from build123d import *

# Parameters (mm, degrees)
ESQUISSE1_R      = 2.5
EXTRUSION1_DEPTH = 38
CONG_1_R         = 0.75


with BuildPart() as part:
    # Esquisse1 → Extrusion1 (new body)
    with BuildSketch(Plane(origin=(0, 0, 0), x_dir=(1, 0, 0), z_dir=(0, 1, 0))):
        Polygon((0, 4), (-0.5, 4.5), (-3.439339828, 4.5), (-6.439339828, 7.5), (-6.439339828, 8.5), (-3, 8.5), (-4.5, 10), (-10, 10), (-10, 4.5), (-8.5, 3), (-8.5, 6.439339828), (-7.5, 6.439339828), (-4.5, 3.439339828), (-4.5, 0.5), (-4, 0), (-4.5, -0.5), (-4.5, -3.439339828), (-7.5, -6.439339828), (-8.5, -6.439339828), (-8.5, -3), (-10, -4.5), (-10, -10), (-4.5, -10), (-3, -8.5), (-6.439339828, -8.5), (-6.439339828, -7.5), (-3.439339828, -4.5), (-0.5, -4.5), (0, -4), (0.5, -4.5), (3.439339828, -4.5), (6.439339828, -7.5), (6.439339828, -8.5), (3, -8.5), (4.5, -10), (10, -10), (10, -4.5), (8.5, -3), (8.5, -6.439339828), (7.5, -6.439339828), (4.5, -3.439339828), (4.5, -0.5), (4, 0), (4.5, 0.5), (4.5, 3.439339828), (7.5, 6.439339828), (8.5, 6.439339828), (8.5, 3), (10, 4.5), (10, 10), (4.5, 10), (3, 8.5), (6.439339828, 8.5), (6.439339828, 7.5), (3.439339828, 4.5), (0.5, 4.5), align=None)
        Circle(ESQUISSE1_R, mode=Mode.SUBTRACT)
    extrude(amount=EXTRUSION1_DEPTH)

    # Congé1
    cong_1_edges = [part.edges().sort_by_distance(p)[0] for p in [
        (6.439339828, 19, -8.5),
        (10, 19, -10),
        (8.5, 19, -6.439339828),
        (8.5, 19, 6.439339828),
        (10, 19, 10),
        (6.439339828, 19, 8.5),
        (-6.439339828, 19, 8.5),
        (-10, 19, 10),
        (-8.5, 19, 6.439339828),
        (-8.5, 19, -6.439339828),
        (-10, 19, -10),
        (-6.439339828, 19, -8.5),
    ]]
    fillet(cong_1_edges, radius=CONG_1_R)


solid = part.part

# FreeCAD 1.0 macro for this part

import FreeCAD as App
import Part
import Sketcher
from FreeCAD import Vector
Q = App.Units.Quantity


def edges_at(feature, points):
    """Names of the edges that pass closest to the given points."""
    edges = feature.Shape.Edges
    near = lambda p: min(range(len(edges)), key=lambda i: edges[i].distToShape(Part.Vertex(*p))[0])
    return sorted({f"Edge{near(p) + 1}" for p in points})

doc = App.newDocument("Part")
body = doc.addObject("PartDesign::Body", "Body")

# Sketch on XZ plane
sketch1 = body.newObject("Sketcher::SketchObject", "Sketch")
sketch1.AttachmentSupport = (doc.getObject("XZ_Plane"), [""])
sketch1.MapMode = "FlatFace"
sketch1.addGeometry(Part.LineSegment(Vector(0, -4, 0), Vector(-0.5, -4.5, 0)), False)
sketch1.addGeometry(Part.LineSegment(Vector(-0.5, -4.5, 0), Vector(-3.43934, -4.5, 0)), False)
sketch1.addGeometry(Part.LineSegment(Vector(-3.43934, -4.5, 0), Vector(-6.43934, -7.5, 0)), False)
sketch1.addGeometry(Part.LineSegment(Vector(-6.43934, -7.5, 0), Vector(-6.43934, -8.5, 0)), False)
sketch1.addGeometry(Part.LineSegment(Vector(-6.43934, -8.5, 0), Vector(-3, -8.5, 0)), False)
sketch1.addGeometry(Part.LineSegment(Vector(-3, -8.5, 0), Vector(-4.5, -10, 0)), False)
sketch1.addGeometry(Part.LineSegment(Vector(-4.5, -10, 0), Vector(-10, -10, 0)), False)
sketch1.addGeometry(Part.LineSegment(Vector(-10, -10, 0), Vector(-10, -4.5, 0)), False)
sketch1.addGeometry(Part.LineSegment(Vector(-10, -4.5, 0), Vector(-8.5, -3, 0)), False)
sketch1.addGeometry(Part.LineSegment(Vector(-8.5, -3, 0), Vector(-8.5, -6.43934, 0)), False)
sketch1.addGeometry(Part.LineSegment(Vector(-8.5, -6.43934, 0), Vector(-7.5, -6.43934, 0)), False)
sketch1.addGeometry(Part.LineSegment(Vector(-7.5, -6.43934, 0), Vector(-4.5, -3.43934, 0)), False)
sketch1.addGeometry(Part.LineSegment(Vector(-4.5, -3.43934, 0), Vector(-4.5, -0.5, 0)), False)
sketch1.addGeometry(Part.LineSegment(Vector(-4.5, -0.5, 0), Vector(-4, 0, 0)), False)
sketch1.addGeometry(Part.LineSegment(Vector(-4, 0, 0), Vector(-4.5, 0.5, 0)), False)
sketch1.addGeometry(Part.LineSegment(Vector(-4.5, 0.5, 0), Vector(-4.5, 3.43934, 0)), False)
sketch1.addGeometry(Part.LineSegment(Vector(-4.5, 3.43934, 0), Vector(-7.5, 6.43934, 0)), False)
sketch1.addGeometry(Part.LineSegment(Vector(-7.5, 6.43934, 0), Vector(-8.5, 6.43934, 0)), False)
sketch1.addGeometry(Part.LineSegment(Vector(-8.5, 6.43934, 0), Vector(-8.5, 3, 0)), False)
sketch1.addGeometry(Part.LineSegment(Vector(-8.5, 3, 0), Vector(-10, 4.5, 0)), False)
sketch1.addGeometry(Part.LineSegment(Vector(-10, 4.5, 0), Vector(-10, 10, 0)), False)
sketch1.addGeometry(Part.LineSegment(Vector(-10, 10, 0), Vector(-4.5, 10, 0)), False)
sketch1.addGeometry(Part.LineSegment(Vector(-4.5, 10, 0), Vector(-3, 8.5, 0)), False)
sketch1.addGeometry(Part.LineSegment(Vector(-3, 8.5, 0), Vector(-6.43934, 8.5, 0)), False)
sketch1.addGeometry(Part.LineSegment(Vector(-6.43934, 8.5, 0), Vector(-6.43934, 7.5, 0)), False)
sketch1.addGeometry(Part.LineSegment(Vector(-6.43934, 7.5, 0), Vector(-3.43934, 4.5, 0)), False)
sketch1.addGeometry(Part.LineSegment(Vector(-3.43934, 4.5, 0), Vector(-0.5, 4.5, 0)), False)
sketch1.addGeometry(Part.LineSegment(Vector(-0.5, 4.5, 0), Vector(0, 4, 0)), False)
sketch1.addGeometry(Part.LineSegment(Vector(0, 4, 0), Vector(0.5, 4.5, 0)), False)
sketch1.addGeometry(Part.LineSegment(Vector(0.5, 4.5, 0), Vector(3.43934, 4.5, 0)), False)
sketch1.addGeometry(Part.LineSegment(Vector(3.43934, 4.5, 0), Vector(6.43934, 7.5, 0)), False)
sketch1.addGeometry(Part.LineSegment(Vector(6.43934, 7.5, 0), Vector(6.43934, 8.5, 0)), False)
sketch1.addGeometry(Part.LineSegment(Vector(6.43934, 8.5, 0), Vector(3, 8.5, 0)), False)
sketch1.addGeometry(Part.LineSegment(Vector(3, 8.5, 0), Vector(4.5, 10, 0)), False)
sketch1.addGeometry(Part.LineSegment(Vector(4.5, 10, 0), Vector(10, 10, 0)), False)
sketch1.addGeometry(Part.LineSegment(Vector(10, 10, 0), Vector(10, 4.5, 0)), False)
sketch1.addGeometry(Part.LineSegment(Vector(10, 4.5, 0), Vector(8.5, 3, 0)), False)
sketch1.addGeometry(Part.LineSegment(Vector(8.5, 3, 0), Vector(8.5, 6.43934, 0)), False)
sketch1.addGeometry(Part.LineSegment(Vector(8.5, 6.43934, 0), Vector(7.5, 6.43934, 0)), False)
sketch1.addGeometry(Part.LineSegment(Vector(7.5, 6.43934, 0), Vector(4.5, 3.43934, 0)), False)
sketch1.addGeometry(Part.LineSegment(Vector(4.5, 3.43934, 0), Vector(4.5, 0.5, 0)), False)
sketch1.addGeometry(Part.LineSegment(Vector(4.5, 0.5, 0), Vector(4, 0, 0)), False)
sketch1.addGeometry(Part.LineSegment(Vector(4, 0, 0), Vector(4.5, -0.5, 0)), False)
sketch1.addGeometry(Part.LineSegment(Vector(4.5, -0.5, 0), Vector(4.5, -3.43934, 0)), False)
sketch1.addGeometry(Part.LineSegment(Vector(4.5, -3.43934, 0), Vector(7.5, -6.43934, 0)), False)
sketch1.addGeometry(Part.LineSegment(Vector(7.5, -6.43934, 0), Vector(8.5, -6.43934, 0)), False)
sketch1.addGeometry(Part.LineSegment(Vector(8.5, -6.43934, 0), Vector(8.5, -3, 0)), False)
sketch1.addGeometry(Part.LineSegment(Vector(8.5, -3, 0), Vector(10, -4.5, 0)), False)
sketch1.addGeometry(Part.LineSegment(Vector(10, -4.5, 0), Vector(10, -10, 0)), False)
sketch1.addGeometry(Part.LineSegment(Vector(10, -10, 0), Vector(4.5, -10, 0)), False)
sketch1.addGeometry(Part.LineSegment(Vector(4.5, -10, 0), Vector(3, -8.5, 0)), False)
sketch1.addGeometry(Part.LineSegment(Vector(3, -8.5, 0), Vector(6.43934, -8.5, 0)), False)
sketch1.addGeometry(Part.LineSegment(Vector(6.43934, -8.5, 0), Vector(6.43934, -7.5, 0)), False)
sketch1.addGeometry(Part.LineSegment(Vector(6.43934, -7.5, 0), Vector(3.43934, -4.5, 0)), False)
sketch1.addGeometry(Part.LineSegment(Vector(3.43934, -4.5, 0), Vector(0.5, -4.5, 0)), False)
sketch1.addGeometry(Part.LineSegment(Vector(0.5, -4.5, 0), Vector(0, -4, 0)), False)
sketch1.addGeometry(Part.Circle(Vector(0, 0, 0), Vector(0, 0, 1), 2.5), False)
sketch1.addConstraint(Sketcher.Constraint("Coincident", 0, 2, 1, 1))
sketch1.addConstraint(Sketcher.Constraint("Coincident", 1, 2, 2, 1))
sketch1.addConstraint(Sketcher.Constraint("Coincident", 2, 2, 3, 1))
sketch1.addConstraint(Sketcher.Constraint("Coincident", 3, 2, 4, 1))
sketch1.addConstraint(Sketcher.Constraint("Coincident", 4, 2, 5, 1))
sketch1.addConstraint(Sketcher.Constraint("Coincident", 5, 2, 6, 1))
sketch1.addConstraint(Sketcher.Constraint("Coincident", 6, 2, 7, 1))
sketch1.addConstraint(Sketcher.Constraint("Coincident", 7, 2, 8, 1))
sketch1.addConstraint(Sketcher.Constraint("Coincident", 8, 2, 9, 1))
sketch1.addConstraint(Sketcher.Constraint("Coincident", 9, 2, 10, 1))
sketch1.addConstraint(Sketcher.Constraint("Coincident", 10, 2, 11, 1))
sketch1.addConstraint(Sketcher.Constraint("Coincident", 11, 2, 12, 1))
sketch1.addConstraint(Sketcher.Constraint("Coincident", 12, 2, 13, 1))
sketch1.addConstraint(Sketcher.Constraint("Coincident", 13, 2, 14, 1))
sketch1.addConstraint(Sketcher.Constraint("Coincident", 14, 2, 15, 1))
sketch1.addConstraint(Sketcher.Constraint("Coincident", 15, 2, 16, 1))
sketch1.addConstraint(Sketcher.Constraint("Coincident", 16, 2, 17, 1))
sketch1.addConstraint(Sketcher.Constraint("Coincident", 17, 2, 18, 1))
sketch1.addConstraint(Sketcher.Constraint("Coincident", 18, 2, 19, 1))
sketch1.addConstraint(Sketcher.Constraint("Coincident", 19, 2, 20, 1))
sketch1.addConstraint(Sketcher.Constraint("Coincident", 20, 2, 21, 1))
sketch1.addConstraint(Sketcher.Constraint("Coincident", 21, 2, 22, 1))
sketch1.addConstraint(Sketcher.Constraint("Coincident", 22, 2, 23, 1))
sketch1.addConstraint(Sketcher.Constraint("Coincident", 23, 2, 24, 1))
sketch1.addConstraint(Sketcher.Constraint("Coincident", 24, 2, 25, 1))
sketch1.addConstraint(Sketcher.Constraint("Coincident", 25, 2, 26, 1))
sketch1.addConstraint(Sketcher.Constraint("Coincident", 26, 2, 27, 1))
sketch1.addConstraint(Sketcher.Constraint("Coincident", 27, 2, 28, 1))
sketch1.addConstraint(Sketcher.Constraint("Coincident", 28, 2, 29, 1))
sketch1.addConstraint(Sketcher.Constraint("Coincident", 29, 2, 30, 1))
sketch1.addConstraint(Sketcher.Constraint("Coincident", 30, 2, 31, 1))
sketch1.addConstraint(Sketcher.Constraint("Coincident", 31, 2, 32, 1))
sketch1.addConstraint(Sketcher.Constraint("Coincident", 32, 2, 33, 1))
sketch1.addConstraint(Sketcher.Constraint("Coincident", 33, 2, 34, 1))
sketch1.addConstraint(Sketcher.Constraint("Coincident", 34, 2, 35, 1))
sketch1.addConstraint(Sketcher.Constraint("Coincident", 35, 2, 36, 1))
sketch1.addConstraint(Sketcher.Constraint("Coincident", 36, 2, 37, 1))
sketch1.addConstraint(Sketcher.Constraint("Coincident", 37, 2, 38, 1))
sketch1.addConstraint(Sketcher.Constraint("Coincident", 38, 2, 39, 1))
sketch1.addConstraint(Sketcher.Constraint("Coincident", 39, 2, 40, 1))
sketch1.addConstraint(Sketcher.Constraint("Coincident", 40, 2, 41, 1))
sketch1.addConstraint(Sketcher.Constraint("Coincident", 41, 2, 42, 1))
sketch1.addConstraint(Sketcher.Constraint("Coincident", 42, 2, 43, 1))
sketch1.addConstraint(Sketcher.Constraint("Coincident", 43, 2, 44, 1))
sketch1.addConstraint(Sketcher.Constraint("Coincident", 44, 2, 45, 1))
sketch1.addConstraint(Sketcher.Constraint("Coincident", 45, 2, 46, 1))
sketch1.addConstraint(Sketcher.Constraint("Coincident", 46, 2, 47, 1))
sketch1.addConstraint(Sketcher.Constraint("Coincident", 47, 2, 48, 1))
sketch1.addConstraint(Sketcher.Constraint("Coincident", 48, 2, 49, 1))
sketch1.addConstraint(Sketcher.Constraint("Coincident", 49, 2, 50, 1))
sketch1.addConstraint(Sketcher.Constraint("Coincident", 50, 2, 51, 1))
sketch1.addConstraint(Sketcher.Constraint("Coincident", 51, 2, 52, 1))
sketch1.addConstraint(Sketcher.Constraint("Coincident", 52, 2, 53, 1))
sketch1.addConstraint(Sketcher.Constraint("Coincident", 53, 2, 54, 1))
sketch1.addConstraint(Sketcher.Constraint("Coincident", 54, 2, 55, 1))
sketch1.addConstraint(Sketcher.Constraint("Coincident", 55, 2, 0, 1))
sketch1.addConstraint(Sketcher.Constraint("Horizontal", 1))
sketch1.addConstraint(Sketcher.Constraint("Vertical", 3))
sketch1.addConstraint(Sketcher.Constraint("Horizontal", 4))
sketch1.addConstraint(Sketcher.Constraint("Horizontal", 6))
sketch1.addConstraint(Sketcher.Constraint("Vertical", 7))
sketch1.addConstraint(Sketcher.Constraint("Vertical", 9))
sketch1.addConstraint(Sketcher.Constraint("Horizontal", 10))
sketch1.addConstraint(Sketcher.Constraint("Vertical", 12))
sketch1.addConstraint(Sketcher.Constraint("Vertical", 15))
sketch1.addConstraint(Sketcher.Constraint("Horizontal", 17))
sketch1.addConstraint(Sketcher.Constraint("Vertical", 18))
sketch1.addConstraint(Sketcher.Constraint("Vertical", 20))
sketch1.addConstraint(Sketcher.Constraint("Horizontal", 21))
sketch1.addConstraint(Sketcher.Constraint("Horizontal", 23))
sketch1.addConstraint(Sketcher.Constraint("Vertical", 24))
sketch1.addConstraint(Sketcher.Constraint("Horizontal", 26))
sketch1.addConstraint(Sketcher.Constraint("Horizontal", 29))
sketch1.addConstraint(Sketcher.Constraint("Vertical", 31))
sketch1.addConstraint(Sketcher.Constraint("Horizontal", 32))
sketch1.addConstraint(Sketcher.Constraint("Horizontal", 34))
sketch1.addConstraint(Sketcher.Constraint("Vertical", 35))
sketch1.addConstraint(Sketcher.Constraint("Vertical", 37))
sketch1.addConstraint(Sketcher.Constraint("Horizontal", 38))
sketch1.addConstraint(Sketcher.Constraint("Vertical", 40))
sketch1.addConstraint(Sketcher.Constraint("Vertical", 43))
sketch1.addConstraint(Sketcher.Constraint("Horizontal", 45))
sketch1.addConstraint(Sketcher.Constraint("Vertical", 46))
sketch1.addConstraint(Sketcher.Constraint("Vertical", 48))
sketch1.addConstraint(Sketcher.Constraint("Horizontal", 49))
sketch1.addConstraint(Sketcher.Constraint("Horizontal", 51))
sketch1.addConstraint(Sketcher.Constraint("Vertical", 52))
sketch1.addConstraint(Sketcher.Constraint("Horizontal", 54))
sketch1.addConstraint(Sketcher.Constraint("Coincident", 56, 3, -1, 1))
sketch1.addConstraint(Sketcher.Constraint("Symmetric", 0, 2, 28, 2, -1, 1))
sketch1.addConstraint(Sketcher.Constraint("Symmetric", 2, 2, 30, 2, -1, 1))
sketch1.addConstraint(Sketcher.Constraint("Symmetric", 4, 2, 32, 2, -1, 1))
sketch1.addConstraint(Sketcher.Constraint("Symmetric", 5, 2, 33, 2, -1, 1))
sketch1.addConstraint(Sketcher.Constraint("Symmetric", 7, 2, 35, 2, -1, 1))
sketch1.addConstraint(Sketcher.Constraint("Symmetric", 8, 2, 36, 2, -1, 1))
sketch1.addConstraint(Sketcher.Constraint("Symmetric", 10, 2, 38, 2, -1, 1))
sketch1.addConstraint(Sketcher.Constraint("Symmetric", 11, 2, 39, 2, -1, 1))
sketch1.addConstraint(Sketcher.Constraint("Symmetric", 13, 2, 41, 2, -1, 1))
sketch1.addConstraint(Sketcher.Constraint("Symmetric", 14, 2, 42, 2, -1, 1))
sketch1.addConstraint(Sketcher.Constraint("Symmetric", 16, 2, 44, 2, -1, 1))
sketch1.addConstraint(Sketcher.Constraint("Symmetric", 18, 2, 46, 2, -1, 1))
sketch1.addConstraint(Sketcher.Constraint("Symmetric", 19, 2, 47, 2, -1, 1))
sketch1.addConstraint(Sketcher.Constraint("Symmetric", 21, 2, 49, 2, -1, 1))
sketch1.addConstraint(Sketcher.Constraint("Symmetric", 22, 2, 50, 2, -1, 1))
sketch1.addConstraint(Sketcher.Constraint("Symmetric", 24, 2, 52, 2, -1, 1))
sketch1.addConstraint(Sketcher.Constraint("Symmetric", 25, 2, 53, 2, -1, 1))
sketch1.addConstraint(Sketcher.Constraint("Symmetric", 27, 2, 55, 2, -1, 1))
sketch1.addConstraint(Sketcher.Constraint("Symmetric", 26, 2, 28, 2, -2))
sketch1.addConstraint(Sketcher.Constraint("Symmetric", 24, 2, 30, 2, -2))
sketch1.addConstraint(Sketcher.Constraint("Symmetric", 22, 2, 32, 2, -2))
sketch1.addConstraint(Sketcher.Constraint("Symmetric", 21, 2, 33, 2, -2))
sketch1.addConstraint(Sketcher.Constraint("Symmetric", 19, 2, 35, 2, -2))
sketch1.addConstraint(Sketcher.Constraint("Symmetric", 18, 2, 36, 2, -2))
sketch1.addConstraint(Sketcher.Constraint("Symmetric", 16, 2, 38, 2, -2))
sketch1.addConstraint(Sketcher.Constraint("Symmetric", 15, 2, 39, 2, -2))
sketch1.addConstraint(Sketcher.Constraint("PointOnObject", 13, 2, -1))
sketch1.addConstraint(Sketcher.Constraint("PointOnObject", 27, 2, -2))
sketch1.addConstraint(Sketcher.Constraint("Parallel", 0, 2))
sketch1.addConstraint(Sketcher.Constraint("Parallel", 2, 5))
sketch1.addConstraint(Sketcher.Constraint("Parallel", 5, 8))
sketch1.addConstraint(Sketcher.Constraint("Parallel", 8, 11))
sketch1.addConstraint(Sketcher.Constraint("Parallel", 11, 13))
sketch1.addConstraint(Sketcher.Constraint("Perpendicular", 13, 14))
sketch1.addConstraint(Sketcher.Constraint("Parallel", 14, 16))
sketch1.addConstraint(Sketcher.Constraint("Parallel", 22, 25))
sketch1.addConstraint(Sketcher.Constraint("Parallel", 28, 30))
sketch1.addConstraint(Sketcher.Constraint("Parallel", 39, 41))
sketch1.addConstraint(Sketcher.Constraint("Parallel", 42, 44))
sketch1.addConstraint(Sketcher.Constraint("Parallel", 53, 55))
sketch1.addConstraint(Sketcher.Constraint("Horizontal", 1, 2, 7, 2))
sketch1.addConstraint(Sketcher.Constraint("Vertical", 5, 2, 11, 2))
sketch1.addConstraint(Sketcher.Constraint("Equal", 45, 3))
sketch1.addConstraint(Sketcher.Constraint("Equal", 49, 7))
sketch1.addConstraint(Sketcher.Constraint("Equal", 51, 9))
sketch1.addConstraint(Sketcher.Constraint("Equal", 54, 12))
sketch1.addConstraint(Sketcher.Constraint("Equal", 5, 8))
sketch1.addConstraint(Sketcher.Constraint("Equal", 0, 13))
sketch1.addConstraint(Sketcher.Constraint("Diameter", 56, Q("5 mm")))
sketch1.addConstraint(Sketcher.Constraint("DistanceX", 10, 1, 10, 2, Q("1 mm")))
sketch1.addConstraint(Sketcher.Constraint("DistanceX", 6, 2, 6, 1, Q("5.5 mm")))
sketch1.addConstraint(Sketcher.Constraint("DistanceX", 4, 2, -1, 1, Q("3 mm")))
sketch1.addConstraint(Sketcher.Constraint("DistanceY", 5, 2, -1, 1, Q("10 mm")))
sketch1.addConstraint(Sketcher.Constraint("DistanceX", 13, 2, -1, 1, Q("4 mm")))
sketch1.addConstraint(Sketcher.Constraint("DistanceX", 1, 2, 1, 1, Q("2.93934 mm")))
pad1 = body.newObject("PartDesign::Pad", "Pad")
pad1.Profile = sketch1
pad1.Length = 38
pad1.Reversed = True
doc.recompute()

fillet = body.newObject("PartDesign::Fillet", "Fillet")
fillet.Base = (pad1, edges_at(pad1, [
    (6.439, 19, -8.5),
    (10, 19, -10),
    (8.5, 19, -6.439),
    (8.5, 19, 6.439),
    (10, 19, 10),
    (6.439, 19, 8.5),
    (-6.439, 19, 8.5),
    (-10, 19, 10),
    (-8.5, 19, 6.439),
    (-8.5, 19, -6.439),
    (-10, 19, -10),
    (-6.439, 19, -8.5),
]))
fillet.Radius = 0.75

doc.recompute()
